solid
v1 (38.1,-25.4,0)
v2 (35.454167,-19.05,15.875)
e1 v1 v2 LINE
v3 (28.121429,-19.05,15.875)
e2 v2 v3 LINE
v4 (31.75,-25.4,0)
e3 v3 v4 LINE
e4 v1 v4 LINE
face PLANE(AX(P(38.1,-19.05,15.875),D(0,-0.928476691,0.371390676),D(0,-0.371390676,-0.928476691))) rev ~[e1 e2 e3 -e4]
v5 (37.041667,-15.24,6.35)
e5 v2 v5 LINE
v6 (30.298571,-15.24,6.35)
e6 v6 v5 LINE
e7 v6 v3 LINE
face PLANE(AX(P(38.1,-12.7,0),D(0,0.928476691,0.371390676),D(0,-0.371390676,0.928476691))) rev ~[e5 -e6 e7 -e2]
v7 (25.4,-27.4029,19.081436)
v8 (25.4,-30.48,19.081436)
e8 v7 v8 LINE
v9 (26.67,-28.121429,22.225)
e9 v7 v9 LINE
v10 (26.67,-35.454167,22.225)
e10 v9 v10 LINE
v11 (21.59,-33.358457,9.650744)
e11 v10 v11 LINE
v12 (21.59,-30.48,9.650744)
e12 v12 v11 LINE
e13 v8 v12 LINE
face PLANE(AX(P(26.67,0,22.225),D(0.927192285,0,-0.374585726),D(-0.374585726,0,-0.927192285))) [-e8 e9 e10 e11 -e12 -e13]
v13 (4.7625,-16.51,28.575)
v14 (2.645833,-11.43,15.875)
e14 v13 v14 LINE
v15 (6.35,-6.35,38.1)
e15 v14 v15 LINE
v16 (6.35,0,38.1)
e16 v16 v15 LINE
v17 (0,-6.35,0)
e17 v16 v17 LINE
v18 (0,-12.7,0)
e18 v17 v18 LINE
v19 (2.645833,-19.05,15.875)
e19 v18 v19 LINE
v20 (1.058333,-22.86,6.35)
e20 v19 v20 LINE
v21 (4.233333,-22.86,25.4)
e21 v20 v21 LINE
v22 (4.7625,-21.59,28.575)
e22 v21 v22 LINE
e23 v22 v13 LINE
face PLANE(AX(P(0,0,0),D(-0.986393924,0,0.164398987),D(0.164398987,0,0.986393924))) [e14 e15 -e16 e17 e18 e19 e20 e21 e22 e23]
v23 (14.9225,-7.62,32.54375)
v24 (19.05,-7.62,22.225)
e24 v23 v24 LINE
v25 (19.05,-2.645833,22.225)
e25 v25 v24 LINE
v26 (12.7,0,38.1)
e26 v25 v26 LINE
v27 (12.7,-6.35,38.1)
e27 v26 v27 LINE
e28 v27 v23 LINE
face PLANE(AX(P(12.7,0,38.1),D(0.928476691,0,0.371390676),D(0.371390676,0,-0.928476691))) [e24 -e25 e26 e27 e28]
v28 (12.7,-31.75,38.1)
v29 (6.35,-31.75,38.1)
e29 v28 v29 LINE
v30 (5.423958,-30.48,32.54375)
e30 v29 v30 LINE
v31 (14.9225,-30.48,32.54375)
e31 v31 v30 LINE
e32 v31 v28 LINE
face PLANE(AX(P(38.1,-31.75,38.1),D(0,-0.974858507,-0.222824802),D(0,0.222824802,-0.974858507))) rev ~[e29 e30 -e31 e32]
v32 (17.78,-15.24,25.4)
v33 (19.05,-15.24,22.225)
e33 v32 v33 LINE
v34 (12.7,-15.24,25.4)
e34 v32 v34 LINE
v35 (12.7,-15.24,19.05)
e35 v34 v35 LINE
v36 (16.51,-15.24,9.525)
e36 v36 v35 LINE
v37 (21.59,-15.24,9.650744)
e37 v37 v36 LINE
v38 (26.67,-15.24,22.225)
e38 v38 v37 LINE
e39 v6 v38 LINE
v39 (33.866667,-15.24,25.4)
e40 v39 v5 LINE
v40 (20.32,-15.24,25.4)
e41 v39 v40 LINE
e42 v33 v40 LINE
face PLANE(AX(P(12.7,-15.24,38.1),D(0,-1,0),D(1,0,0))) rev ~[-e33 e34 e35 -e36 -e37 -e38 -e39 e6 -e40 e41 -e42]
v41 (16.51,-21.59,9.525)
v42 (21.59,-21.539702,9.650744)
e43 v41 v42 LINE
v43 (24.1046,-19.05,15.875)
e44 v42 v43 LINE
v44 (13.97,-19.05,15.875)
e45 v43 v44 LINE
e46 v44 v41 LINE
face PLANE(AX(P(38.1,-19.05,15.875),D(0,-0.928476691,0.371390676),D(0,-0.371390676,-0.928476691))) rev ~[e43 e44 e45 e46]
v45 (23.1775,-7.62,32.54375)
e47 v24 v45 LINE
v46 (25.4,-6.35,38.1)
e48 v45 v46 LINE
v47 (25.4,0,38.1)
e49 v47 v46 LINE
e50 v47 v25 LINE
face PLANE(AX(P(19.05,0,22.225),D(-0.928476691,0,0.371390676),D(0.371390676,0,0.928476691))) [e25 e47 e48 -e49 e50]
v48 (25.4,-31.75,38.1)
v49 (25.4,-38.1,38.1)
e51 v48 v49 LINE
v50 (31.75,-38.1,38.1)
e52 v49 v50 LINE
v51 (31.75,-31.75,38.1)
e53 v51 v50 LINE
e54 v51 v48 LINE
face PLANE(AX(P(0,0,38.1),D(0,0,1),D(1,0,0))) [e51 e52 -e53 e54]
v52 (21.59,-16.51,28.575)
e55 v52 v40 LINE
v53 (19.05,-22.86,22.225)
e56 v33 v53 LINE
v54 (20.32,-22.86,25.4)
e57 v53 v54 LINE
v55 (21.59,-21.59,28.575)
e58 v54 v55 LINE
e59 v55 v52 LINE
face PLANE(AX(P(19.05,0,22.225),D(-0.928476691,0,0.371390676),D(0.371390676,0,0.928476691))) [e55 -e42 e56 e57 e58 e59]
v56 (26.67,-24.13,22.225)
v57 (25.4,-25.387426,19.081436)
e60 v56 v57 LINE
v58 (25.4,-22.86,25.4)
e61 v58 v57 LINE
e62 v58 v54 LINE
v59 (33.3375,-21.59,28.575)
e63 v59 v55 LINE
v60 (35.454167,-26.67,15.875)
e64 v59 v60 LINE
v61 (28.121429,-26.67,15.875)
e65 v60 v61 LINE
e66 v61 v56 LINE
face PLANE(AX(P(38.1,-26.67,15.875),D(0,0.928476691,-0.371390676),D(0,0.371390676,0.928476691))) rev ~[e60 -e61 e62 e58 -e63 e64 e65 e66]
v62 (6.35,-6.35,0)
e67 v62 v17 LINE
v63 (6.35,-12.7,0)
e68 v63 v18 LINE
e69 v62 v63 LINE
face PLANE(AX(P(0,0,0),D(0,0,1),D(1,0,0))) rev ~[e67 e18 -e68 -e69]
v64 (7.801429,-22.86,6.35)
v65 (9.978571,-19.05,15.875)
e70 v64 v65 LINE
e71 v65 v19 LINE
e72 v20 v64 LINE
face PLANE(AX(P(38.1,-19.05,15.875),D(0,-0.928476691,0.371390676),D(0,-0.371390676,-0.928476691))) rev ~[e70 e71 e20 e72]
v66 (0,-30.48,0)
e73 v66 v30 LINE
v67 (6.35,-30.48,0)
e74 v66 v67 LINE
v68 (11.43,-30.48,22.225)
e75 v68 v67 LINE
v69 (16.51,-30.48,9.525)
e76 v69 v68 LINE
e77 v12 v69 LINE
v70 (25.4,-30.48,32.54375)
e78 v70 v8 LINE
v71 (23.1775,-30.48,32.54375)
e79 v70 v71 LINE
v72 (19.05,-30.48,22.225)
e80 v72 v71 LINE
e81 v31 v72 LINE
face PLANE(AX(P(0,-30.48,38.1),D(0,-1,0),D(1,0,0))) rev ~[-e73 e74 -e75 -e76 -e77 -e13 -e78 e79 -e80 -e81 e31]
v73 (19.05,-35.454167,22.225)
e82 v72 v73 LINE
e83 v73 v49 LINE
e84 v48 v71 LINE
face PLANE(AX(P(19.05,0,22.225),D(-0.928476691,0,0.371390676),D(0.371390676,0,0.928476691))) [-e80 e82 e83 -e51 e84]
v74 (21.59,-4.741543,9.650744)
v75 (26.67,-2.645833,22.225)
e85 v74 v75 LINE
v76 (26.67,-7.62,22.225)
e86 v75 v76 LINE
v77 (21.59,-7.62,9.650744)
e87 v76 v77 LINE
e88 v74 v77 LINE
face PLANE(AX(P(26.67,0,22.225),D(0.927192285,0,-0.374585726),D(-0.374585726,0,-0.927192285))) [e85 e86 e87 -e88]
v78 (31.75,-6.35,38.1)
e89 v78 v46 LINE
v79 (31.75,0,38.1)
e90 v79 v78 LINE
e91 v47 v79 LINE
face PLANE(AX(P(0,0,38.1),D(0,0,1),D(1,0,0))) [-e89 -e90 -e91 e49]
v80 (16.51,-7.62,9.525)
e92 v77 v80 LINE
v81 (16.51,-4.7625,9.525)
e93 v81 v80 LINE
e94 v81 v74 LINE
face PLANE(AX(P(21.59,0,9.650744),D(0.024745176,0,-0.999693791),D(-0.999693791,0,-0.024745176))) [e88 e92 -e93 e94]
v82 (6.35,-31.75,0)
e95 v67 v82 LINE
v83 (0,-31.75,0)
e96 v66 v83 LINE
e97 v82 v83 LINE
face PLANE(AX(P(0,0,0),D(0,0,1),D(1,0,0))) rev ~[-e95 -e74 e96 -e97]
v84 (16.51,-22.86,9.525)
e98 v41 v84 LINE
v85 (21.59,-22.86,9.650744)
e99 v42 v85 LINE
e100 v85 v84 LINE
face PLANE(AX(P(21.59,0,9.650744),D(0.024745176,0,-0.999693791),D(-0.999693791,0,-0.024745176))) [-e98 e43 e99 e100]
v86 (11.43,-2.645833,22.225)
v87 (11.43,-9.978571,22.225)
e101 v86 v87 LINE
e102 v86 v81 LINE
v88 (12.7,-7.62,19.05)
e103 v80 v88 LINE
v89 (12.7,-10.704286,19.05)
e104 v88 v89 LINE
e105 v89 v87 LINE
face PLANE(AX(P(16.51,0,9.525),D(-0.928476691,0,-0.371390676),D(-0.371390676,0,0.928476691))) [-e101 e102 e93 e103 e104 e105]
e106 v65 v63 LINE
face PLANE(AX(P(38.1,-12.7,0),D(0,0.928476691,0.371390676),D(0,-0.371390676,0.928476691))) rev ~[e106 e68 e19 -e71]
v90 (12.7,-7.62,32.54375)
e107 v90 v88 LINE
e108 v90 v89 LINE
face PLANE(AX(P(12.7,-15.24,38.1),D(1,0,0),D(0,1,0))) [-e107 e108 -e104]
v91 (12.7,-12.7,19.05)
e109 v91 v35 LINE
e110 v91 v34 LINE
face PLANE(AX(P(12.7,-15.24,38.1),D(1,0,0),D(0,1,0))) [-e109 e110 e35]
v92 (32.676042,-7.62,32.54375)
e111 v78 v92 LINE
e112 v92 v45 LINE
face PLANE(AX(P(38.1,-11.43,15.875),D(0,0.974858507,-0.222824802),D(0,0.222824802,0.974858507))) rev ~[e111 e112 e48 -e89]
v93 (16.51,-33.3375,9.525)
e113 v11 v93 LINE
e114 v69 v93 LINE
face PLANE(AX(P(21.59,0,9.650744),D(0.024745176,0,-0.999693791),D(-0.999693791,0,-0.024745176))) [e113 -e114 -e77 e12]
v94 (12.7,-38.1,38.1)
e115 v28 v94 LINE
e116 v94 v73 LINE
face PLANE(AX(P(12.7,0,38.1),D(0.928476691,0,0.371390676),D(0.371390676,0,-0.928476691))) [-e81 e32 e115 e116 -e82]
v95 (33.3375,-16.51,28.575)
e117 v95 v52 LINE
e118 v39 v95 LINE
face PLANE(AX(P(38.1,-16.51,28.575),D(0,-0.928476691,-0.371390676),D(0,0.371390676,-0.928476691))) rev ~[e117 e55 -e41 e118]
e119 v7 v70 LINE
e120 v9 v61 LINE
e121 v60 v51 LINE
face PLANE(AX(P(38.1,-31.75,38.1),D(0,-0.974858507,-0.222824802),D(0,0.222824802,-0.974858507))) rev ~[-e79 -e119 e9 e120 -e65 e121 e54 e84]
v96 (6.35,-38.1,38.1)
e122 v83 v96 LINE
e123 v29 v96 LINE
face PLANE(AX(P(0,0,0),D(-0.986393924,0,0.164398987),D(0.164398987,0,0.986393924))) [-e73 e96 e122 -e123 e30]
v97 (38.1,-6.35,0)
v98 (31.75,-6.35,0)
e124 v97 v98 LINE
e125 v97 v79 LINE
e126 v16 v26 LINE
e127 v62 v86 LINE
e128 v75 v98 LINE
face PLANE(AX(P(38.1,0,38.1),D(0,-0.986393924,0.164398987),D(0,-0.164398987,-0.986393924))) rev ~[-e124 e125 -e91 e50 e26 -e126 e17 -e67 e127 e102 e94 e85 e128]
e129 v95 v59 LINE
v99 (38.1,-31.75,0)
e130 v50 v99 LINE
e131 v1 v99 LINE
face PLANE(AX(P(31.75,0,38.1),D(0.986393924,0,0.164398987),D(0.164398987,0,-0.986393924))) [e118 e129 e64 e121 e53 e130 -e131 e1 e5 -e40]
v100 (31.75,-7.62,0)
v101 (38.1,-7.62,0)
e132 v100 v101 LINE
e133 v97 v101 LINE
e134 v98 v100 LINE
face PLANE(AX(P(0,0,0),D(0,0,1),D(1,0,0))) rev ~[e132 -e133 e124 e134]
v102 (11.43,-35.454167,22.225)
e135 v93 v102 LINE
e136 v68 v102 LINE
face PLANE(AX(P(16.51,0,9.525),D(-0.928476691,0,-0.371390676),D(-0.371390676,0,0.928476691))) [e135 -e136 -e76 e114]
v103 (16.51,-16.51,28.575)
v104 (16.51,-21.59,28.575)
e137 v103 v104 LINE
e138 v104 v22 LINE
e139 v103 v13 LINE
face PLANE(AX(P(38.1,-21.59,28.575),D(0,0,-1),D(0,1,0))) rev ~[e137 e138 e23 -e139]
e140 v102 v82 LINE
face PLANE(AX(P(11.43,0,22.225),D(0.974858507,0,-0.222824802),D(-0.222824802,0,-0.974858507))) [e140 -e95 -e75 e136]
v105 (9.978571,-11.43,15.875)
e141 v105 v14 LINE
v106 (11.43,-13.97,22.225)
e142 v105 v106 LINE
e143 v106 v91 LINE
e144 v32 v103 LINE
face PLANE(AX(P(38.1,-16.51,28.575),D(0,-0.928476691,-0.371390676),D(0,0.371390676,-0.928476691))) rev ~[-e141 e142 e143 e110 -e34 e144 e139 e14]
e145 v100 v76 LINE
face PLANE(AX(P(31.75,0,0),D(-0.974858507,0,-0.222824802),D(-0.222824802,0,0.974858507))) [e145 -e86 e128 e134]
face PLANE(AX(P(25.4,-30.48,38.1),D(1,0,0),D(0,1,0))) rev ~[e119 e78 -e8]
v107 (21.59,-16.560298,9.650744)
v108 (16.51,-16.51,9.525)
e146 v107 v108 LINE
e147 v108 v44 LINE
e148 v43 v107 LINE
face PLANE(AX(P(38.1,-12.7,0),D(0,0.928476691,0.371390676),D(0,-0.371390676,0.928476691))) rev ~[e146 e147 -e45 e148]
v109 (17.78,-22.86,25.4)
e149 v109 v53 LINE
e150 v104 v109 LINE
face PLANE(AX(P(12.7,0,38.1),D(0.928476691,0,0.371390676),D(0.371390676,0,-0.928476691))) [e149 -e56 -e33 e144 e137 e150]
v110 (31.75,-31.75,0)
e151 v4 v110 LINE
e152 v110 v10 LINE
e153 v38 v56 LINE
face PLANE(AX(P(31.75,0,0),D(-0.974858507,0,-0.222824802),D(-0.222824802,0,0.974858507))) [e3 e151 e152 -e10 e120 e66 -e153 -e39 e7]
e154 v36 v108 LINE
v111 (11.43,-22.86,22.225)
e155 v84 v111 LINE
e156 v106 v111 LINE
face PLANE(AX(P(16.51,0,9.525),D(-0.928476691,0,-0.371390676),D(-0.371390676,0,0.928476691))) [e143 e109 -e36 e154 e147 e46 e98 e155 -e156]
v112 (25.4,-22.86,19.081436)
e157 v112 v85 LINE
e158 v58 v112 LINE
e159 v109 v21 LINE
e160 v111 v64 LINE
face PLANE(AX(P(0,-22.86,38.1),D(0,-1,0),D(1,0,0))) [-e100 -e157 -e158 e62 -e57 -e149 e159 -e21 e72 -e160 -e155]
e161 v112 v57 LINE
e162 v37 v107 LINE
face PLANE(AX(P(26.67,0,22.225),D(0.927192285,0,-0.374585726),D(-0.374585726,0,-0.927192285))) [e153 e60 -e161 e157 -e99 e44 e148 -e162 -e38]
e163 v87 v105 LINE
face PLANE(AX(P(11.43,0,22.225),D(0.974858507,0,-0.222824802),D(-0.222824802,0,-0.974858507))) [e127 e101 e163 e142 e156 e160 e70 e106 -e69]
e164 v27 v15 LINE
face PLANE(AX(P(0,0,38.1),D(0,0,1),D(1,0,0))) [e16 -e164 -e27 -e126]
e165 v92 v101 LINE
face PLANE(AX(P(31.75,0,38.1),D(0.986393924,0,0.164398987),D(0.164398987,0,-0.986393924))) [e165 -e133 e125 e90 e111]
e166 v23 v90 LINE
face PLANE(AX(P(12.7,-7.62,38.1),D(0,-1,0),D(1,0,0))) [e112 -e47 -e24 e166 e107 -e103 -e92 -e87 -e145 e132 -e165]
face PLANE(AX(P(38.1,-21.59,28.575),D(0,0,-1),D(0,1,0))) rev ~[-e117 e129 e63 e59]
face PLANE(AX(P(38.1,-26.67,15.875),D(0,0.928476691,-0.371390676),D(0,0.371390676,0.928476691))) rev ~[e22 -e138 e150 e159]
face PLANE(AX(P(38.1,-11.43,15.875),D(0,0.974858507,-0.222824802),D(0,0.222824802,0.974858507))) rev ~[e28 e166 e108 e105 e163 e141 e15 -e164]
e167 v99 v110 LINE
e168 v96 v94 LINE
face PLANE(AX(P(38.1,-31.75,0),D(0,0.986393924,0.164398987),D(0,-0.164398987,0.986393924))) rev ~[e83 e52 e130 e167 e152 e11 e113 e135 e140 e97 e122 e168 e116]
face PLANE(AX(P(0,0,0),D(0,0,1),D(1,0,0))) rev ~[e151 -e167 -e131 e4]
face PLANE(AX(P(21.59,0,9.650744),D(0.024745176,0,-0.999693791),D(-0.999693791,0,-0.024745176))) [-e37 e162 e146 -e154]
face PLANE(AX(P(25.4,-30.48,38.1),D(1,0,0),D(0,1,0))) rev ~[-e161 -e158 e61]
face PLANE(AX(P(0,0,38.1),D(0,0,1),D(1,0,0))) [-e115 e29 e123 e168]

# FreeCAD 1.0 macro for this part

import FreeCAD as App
import Part
import Sketcher
from FreeCAD import Vector
Q = App.Units.Quantity


def add_polygon(sketch, points):
    """Adds a closed chain of lines whose ends are joined by coincident constraints."""
    first, n = sketch.GeometryCount, len(points)
    for a, b in zip(points, points[1:] + points[:1]):
        sketch.addGeometry(Part.LineSegment(App.Vector(*a, 0), App.Vector(*b, 0)), False)
    for i in range(n):
        sketch.addConstraint(Sketcher.Constraint("Coincident", first + i, 2, first + (i + 1) % n, 1))

doc = App.newDocument("Part")
body = doc.addObject("PartDesign::Body", "Body")

# Sketch on XZ plane
sketch1 = doc.addObject("Sketcher::SketchObject", "Sketch")
body.addObject(sketch1)
sketch1.AttachmentSupport = (doc.XZ_Plane, [""])
sketch1.MapMode = "FlatFace"
add_polygon(sketch1, [(0, 38), (0, 0), (38, 0), (38, 38)])  # lines 0-3
sketch1.addConstraint([
    Sketcher.Constraint("Vertical", 0),
    Sketcher.Constraint("Horizontal", 1),
    Sketcher.Constraint("Vertical", 2),
    Sketcher.Constraint("Horizontal", 3),
    Sketcher.Constraint("Coincident", 0, 2, -1, 1),
    Sketcher.Constraint("Equal", 3, 0),
    Sketcher.Constraint("DistanceX", 1, 1, 1, 2, Q("1.5 in")),
])
pad1 = doc.addObject("PartDesign::Pad", "Pad")
body.addObject(pad1)
pad1.Profile = sketch1
pad1.Length = Q("1.5 in")

# Sketch on YZ plane
sketch2 = doc.addObject("Sketcher::SketchObject", "Sketch001")
body.addObject(sketch2)
sketch2.AttachmentSupport = (doc.YZ_Plane, [""])
sketch2.MapMode = "FlatFace"
sketch2.AttachmentOffset = App.Placement(Vector(0, 0, 1.5 * 25.4), App.Rotation())
add_polygon(sketch2, [(-11, 16), (-6, 38), (-32, 38), (-27, 16), (-22, 29), (-17, 29)])  # lines 0-5
add_polygon(sketch2, [(-32, 0), (-38, 38), (-38, 0)])  # lines 6-8
add_polygon(sketch2, [(-25, 0), (-13, 0), (-19, 16)])  # lines 9-11
add_polygon(sketch2, [(-6, 0), (0, 0), (0, 38)])  # lines 12-14
sketch2.addConstraint([
    Sketcher.Constraint("Horizontal", 1),
    Sketcher.Constraint("Horizontal", 4),
    Sketcher.Constraint("Vertical", 7),
    Sketcher.Constraint("Horizontal", 8),
    Sketcher.Constraint("Horizontal", 9),
    Sketcher.Constraint("Horizontal", 12),
    Sketcher.Constraint("Vertical", 13),
    Sketcher.Constraint("Coincident", 12, 2, -1, 1),
    Sketcher.Constraint("PointOnObject", 7, 2, -1),
    Sketcher.Constraint("PointOnObject", 9, 2, -1),
    Sketcher.Constraint("Parallel", 5, 10),
    Sketcher.Constraint("Parallel", 3, 11),
    Sketcher.Constraint("Horizontal", 2, 2, 5, 2),
    Sketcher.Constraint("Horizontal", 1, 2, 6, 2),
    Sketcher.Constraint("Horizontal", 5, 2, 10, 2),
    Sketcher.Constraint("Horizontal", 6, 2, 13, 2),
    Sketcher.Constraint("Vertical", 1, 2, 8, 2),
    Sketcher.Constraint("Vertical", 0, 2, 14, 2),
    Sketcher.Constraint("Equal", 8, 12),
    Sketcher.Constraint("Equal", 0, 2),
    Sketcher.Constraint("Equal", 3, 5),
    Sketcher.Constraint("DistanceX", 1, 2, 1, 1, Q("1 in")),
    Sketcher.Constraint("DistanceX", 4, 1, 4, 2, Q("0.2 in")),
    Sketcher.Constraint("DistanceX", 9, 1, 9, 2, Q("0.5 in")),
    Sketcher.Constraint("DistanceY", 7, 2, 7, 1, Q("1.5 in")),
    Sketcher.Constraint("DistanceX", 11, 2, -1, 1, Q("1 in")),
    Sketcher.Constraint("DistanceX", 7, 2, 9, 2, Q("1 in")),
    Sketcher.Constraint("DistanceX", 1, 2, 2, 2, Q("0.2 in")),
    Sketcher.Constraint("DistanceY", 2, 2, 3, 2, Q("0.5 in")),
])
pocket1 = doc.addObject("PartDesign::Pocket", "Pocket")
body.addObject(pocket1)
pocket1.Profile = sketch2
pocket1.Length = Q("1.5 in")

# Sketch on XZ plane
sketch3 = doc.addObject("Sketcher::SketchObject", "Sketch002")
body.addObject(sketch3)
sketch3.AttachmentSupport = (doc.XZ_Plane, [""])
sketch3.MapMode = "FlatFace"
add_polygon(sketch3, [(11, 22), (6, 0), (32, 0), (27, 22), (22, 10), (17, 10)])  # lines 0-5
add_polygon(sketch3, [(32, 38), (38, 0), (38, 38)])  # lines 6-8
add_polygon(sketch3, [(25, 38), (13, 38), (19, 22)])  # lines 9-11
add_polygon(sketch3, [(0, 38), (0, 0), (6, 38)])  # lines 12-14
sketch3.addConstraint([
    Sketcher.Constraint("Horizontal", 1),
    Sketcher.Constraint("Vertical", 7),
    Sketcher.Constraint("Horizontal", 8),
    Sketcher.Constraint("Horizontal", 9),
    Sketcher.Constraint("Vertical", 12),
    Sketcher.Constraint("Horizontal", 14),
    Sketcher.Constraint("Coincident", 12, 2, -1, 1),
    Sketcher.Constraint("PointOnObject", 0, 2, -1),
    Sketcher.Constraint("PointOnObject", 6, 2, -1),
    Sketcher.Constraint("Parallel", 5, 10),
    Sketcher.Constraint("Horizontal", 2, 2, 5, 2),
    Sketcher.Constraint("Horizontal", 8, 2, 9, 2),
    Sketcher.Constraint("Horizontal", 5, 2, 10, 2),
    Sketcher.Constraint("Horizontal", 11, 2, 13, 2),
    Sketcher.Constraint("Vertical", 1, 2, 8, 2),
    Sketcher.Constraint("Vertical", 0, 2, 13, 2),
    Sketcher.Constraint("Equal", 8, 14),
    Sketcher.Constraint("Equal", 0, 2),
    Sketcher.Constraint("Equal", 10, 11),
    Sketcher.Constraint("DistanceX", 1, 1, 1, 2, Q("1 in")),
    Sketcher.Constraint("DistanceX", 9, 2, 9, 1, Q("0.5 in")),
    Sketcher.Constraint("DistanceY", 7, 1, 7, 2, Q("1.5 in")),
    Sketcher.Constraint("DistanceX", -1, 1, 11, 2, Q("1 in")),
    Sketcher.Constraint("DistanceX", 9, 2, 7, 2, Q("1 in")),
    Sketcher.Constraint("DistanceX", 2, 2, 1, 2, Q("0.2 in")),
    Sketcher.Constraint("DistanceX", 3, 2, 2, 2, Q("0.2 in")),
    Sketcher.Constraint("DistanceX", 4, 2, 3, 2, Q("0.2 in")),
    Sketcher.Constraint("DistanceY", 4, 2, 2, 2, Q("0.5 in")),
    Sketcher.Constraint("Distance", 3, 13.561649),
])
pocket2 = doc.addObject("PartDesign::Pocket", "Pocket001")
body.addObject(pocket2)
pocket2.Profile = sketch3
pocket2.Length = Q("1.5 in")
pocket2.Reversed = True

# Sketch on XY plane
sketch4 = doc.addObject("Sketcher::SketchObject", "Sketch003")
body.addObject(sketch4)
sketch4.AttachmentSupport = (doc.XY_Plane, [""])
sketch4.MapMode = "FlatFace"
sketch4.AttachmentOffset = App.Placement(Vector(0, 0, 1.5 * 25.4), App.Rotation())
add_polygon(sketch4, [(13, -8), (13, -15), (38, -15), (38, -8)])  # lines 0-3
add_polygon(sketch4, [(0, -23), (0, -30), (25, -30), (25, -23)])  # lines 4-7
sketch4.addConstraint([
    Sketcher.Constraint("Vertical", 0),
    Sketcher.Constraint("Horizontal", 1),
    Sketcher.Constraint("Vertical", 2),
    Sketcher.Constraint("Horizontal", 3),
    Sketcher.Constraint("Vertical", 4),
    Sketcher.Constraint("Horizontal", 5),
    Sketcher.Constraint("Vertical", 6),
    Sketcher.Constraint("Horizontal", 7),
    Sketcher.Constraint("PointOnObject", 4, 2, -2),
    Sketcher.Constraint("Equal", 3, 5),
    Sketcher.Constraint("Equal", 2, 4),
    Sketcher.Constraint("DistanceX", 1, 1, 1, 2, Q("1 in")),
    Sketcher.Constraint("DistanceY", 0, 2, 0, 1, Q("0.3 in")),
    Sketcher.Constraint("DistanceX", -1, 1, 0, 2, Q("0.5 in")),
    Sketcher.Constraint("DistanceY", 0, 2, -1, 1, Q("0.6 in")),
    Sketcher.Constraint("DistanceY", 4, 2, -1, 1, Q("1.2 in")),
])
pocket3 = doc.addObject("PartDesign::Pocket", "Pocket002")
body.addObject(pocket3)
pocket3.Profile = sketch4
pocket3.Length = Q("1.5 in")

doc.recompute()
